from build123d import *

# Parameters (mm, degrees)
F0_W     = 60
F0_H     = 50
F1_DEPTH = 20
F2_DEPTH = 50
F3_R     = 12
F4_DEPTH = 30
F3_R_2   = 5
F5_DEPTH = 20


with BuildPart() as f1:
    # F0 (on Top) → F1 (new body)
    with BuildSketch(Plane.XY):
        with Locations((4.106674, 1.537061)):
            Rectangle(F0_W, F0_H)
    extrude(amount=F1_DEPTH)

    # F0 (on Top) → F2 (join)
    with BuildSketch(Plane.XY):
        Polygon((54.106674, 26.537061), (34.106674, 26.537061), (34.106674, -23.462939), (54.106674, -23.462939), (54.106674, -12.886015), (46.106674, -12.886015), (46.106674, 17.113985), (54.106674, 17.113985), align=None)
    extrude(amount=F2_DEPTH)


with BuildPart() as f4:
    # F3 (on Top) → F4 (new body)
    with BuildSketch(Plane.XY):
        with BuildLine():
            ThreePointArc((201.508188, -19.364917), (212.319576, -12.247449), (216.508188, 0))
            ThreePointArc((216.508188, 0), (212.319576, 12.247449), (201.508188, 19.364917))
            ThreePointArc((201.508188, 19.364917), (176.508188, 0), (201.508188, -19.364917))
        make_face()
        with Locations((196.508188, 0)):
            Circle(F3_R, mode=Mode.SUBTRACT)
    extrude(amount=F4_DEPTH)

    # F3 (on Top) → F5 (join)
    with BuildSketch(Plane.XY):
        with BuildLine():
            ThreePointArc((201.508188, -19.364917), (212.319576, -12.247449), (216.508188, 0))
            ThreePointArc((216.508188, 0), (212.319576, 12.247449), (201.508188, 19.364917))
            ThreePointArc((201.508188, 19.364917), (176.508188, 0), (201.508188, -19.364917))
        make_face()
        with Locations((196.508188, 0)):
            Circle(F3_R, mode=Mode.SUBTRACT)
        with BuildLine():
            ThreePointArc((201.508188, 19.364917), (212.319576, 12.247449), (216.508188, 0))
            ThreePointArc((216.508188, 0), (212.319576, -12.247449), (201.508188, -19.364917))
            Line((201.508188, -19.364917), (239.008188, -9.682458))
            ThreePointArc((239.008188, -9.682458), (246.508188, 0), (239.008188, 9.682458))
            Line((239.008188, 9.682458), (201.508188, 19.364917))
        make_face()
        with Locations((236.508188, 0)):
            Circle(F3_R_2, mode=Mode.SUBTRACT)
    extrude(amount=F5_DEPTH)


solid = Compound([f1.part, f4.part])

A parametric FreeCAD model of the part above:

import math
import FreeCAD as App
import Part
import Sketcher
from FreeCAD import Vector

doc = App.newDocument("Part")
params = doc.addObject("Spreadsheet::Sheet", "Params")
for row, (alias, value) in enumerate([
    ("sketch1_width", "60 mm"),
    ("sketch1_height", "50 mm"),
    ("pad1_length", "20 mm"),
    ("sketch2_width", "20 mm"),
    ("sketch2_width2", "8 mm"),
    ("sketch2_height", "50 mm"),
    ("sketch2_height2", "30 mm"),
    ("pad2_length", "50 mm"),
    ("sketch3_diameter", "24 mm"),
    ("sketch3_radius", "20.000001 mm"),
    ("pad3_length", "30 mm"),
    ("sketch4_diameter", "24 mm"),
    ("sketch4_diameter2", "10 mm"),
    ("sketch4_radius", "20 mm"),
    ("sketch4_radius2", "10 mm"),
    ("pad4_length", "20 mm"),
], start=1):
    params.set(f"A{row}", alias)
    params.set(f"B{row}", "=" + value)
    params.setAlias(f"B{row}", alias)

body = doc.addObject("PartDesign::Body", "Body")

# Sketch on XY plane
sketch1 = doc.addObject("Sketcher::SketchObject", "Sketch")
body.addObject(sketch1)
sketch1.AttachmentSupport = (doc.XY_Plane, [""])
sketch1.MapMode = "FlatFace"
sketch1.addGeometry([
    Part.LineSegment(Vector(-25.893326, 26.537061, 0), Vector(-25.893326, -23.462939, 0)),
    Part.LineSegment(Vector(-25.893326, -23.462939, 0), Vector(34.106674, -23.462939, 0)),
    Part.LineSegment(Vector(34.106674, -23.462939, 0), Vector(34.106674, 26.537061, 0)),
    Part.LineSegment(Vector(34.106674, 26.537061, 0), Vector(-25.893326, 26.537061, 0)),
], False)
sketch1.addConstraint([
    Sketcher.Constraint("Coincident", 0, 2, 1, 1),
    Sketcher.Constraint("Coincident", 1, 2, 2, 1),
    Sketcher.Constraint("Coincident", 2, 2, 3, 1),
    Sketcher.Constraint("Coincident", 3, 2, 0, 1),
    Sketcher.Constraint("Vertical", 0),
    Sketcher.Constraint("Horizontal", 1),
    Sketcher.Constraint("Vertical", 2),
    Sketcher.Constraint("Horizontal", 3),
    Sketcher.Constraint("DistanceX", 1, 1, 1, 2, 60.0),
    Sketcher.Constraint("DistanceY", 0, 2, 0, 1, 50.0),
    Sketcher.Constraint("DistanceY", 0, 2, -1, 1, 23.462939),
    Sketcher.Constraint("DistanceX", 0, 2, -1, 1, 25.893326),
])
sketch1.setExpression("Constraints[8]", "Params.sketch1_width")
sketch1.setExpression("Constraints[9]", "Params.sketch1_height")
pad1 = doc.addObject("PartDesign::Pad", "Pad")
body.addObject(pad1)
pad1.Profile = sketch1
pad1.setExpression("Length", "Params.pad1_length")

# Sketch on XY plane
sketch2 = doc.addObject("Sketcher::SketchObject", "Sketch001")
body.addObject(sketch2)
sketch2.AttachmentSupport = (doc.XY_Plane, [""])
sketch2.MapMode = "FlatFace"
sketch2.addGeometry([
    Part.LineSegment(Vector(54.106674, 26.537061, 0), Vector(34.106674, 26.537061, 0)),  # 0
    Part.LineSegment(Vector(34.106674, 26.537061, 0), Vector(34.106674, -23.462939, 0)),  # 1
    Part.LineSegment(Vector(34.106674, -23.462939, 0), Vector(54.106674, -23.462939, 0)),  # 2
    Part.LineSegment(Vector(54.106674, -23.462939, 0), Vector(54.106674, -12.886015, 0)),  # 3
    Part.LineSegment(Vector(54.106674, -12.886015, 0), Vector(46.106674, -12.886015, 0)),  # 4
    Part.LineSegment(Vector(46.106674, -12.886015, 0), Vector(46.106674, 17.113985, 0)),  # 5
    Part.LineSegment(Vector(46.106674, 17.113985, 0), Vector(54.106674, 17.113985, 0)),  # 6
    Part.LineSegment(Vector(54.106674, 17.113985, 0), Vector(54.106674, 26.537061, 0)),  # 7
], False)
sketch2.addConstraint([
    Sketcher.Constraint("Coincident", 0, 2, 1, 1),
    Sketcher.Constraint("Coincident", 1, 2, 2, 1),
    Sketcher.Constraint("Coincident", 2, 2, 3, 1),
    Sketcher.Constraint("Coincident", 3, 2, 4, 1),
    Sketcher.Constraint("Coincident", 4, 2, 5, 1),
    Sketcher.Constraint("Coincident", 5, 2, 6, 1),
    Sketcher.Constraint("Coincident", 6, 2, 7, 1),
    Sketcher.Constraint("Coincident", 7, 2, 0, 1),
    Sketcher.Constraint("Horizontal", 0),
    Sketcher.Constraint("Vertical", 1),
    Sketcher.Constraint("Horizontal", 2),
    Sketcher.Constraint("Vertical", 3),
    Sketcher.Constraint("Horizontal", 4),
    Sketcher.Constraint("Vertical", 5),
    Sketcher.Constraint("Horizontal", 6),
    Sketcher.Constraint("Vertical", 7),
    Sketcher.Constraint("Vertical", 3, 2, 6, 2),
    Sketcher.Constraint("DistanceX", 0, 2, 0, 1, 20.0),
    Sketcher.Constraint("DistanceX", 4, 2, 4, 1, 8.0),
    Sketcher.Constraint("DistanceY", 1, 2, 1, 1, 50.0),
    Sketcher.Constraint("DistanceY", 5, 1, 5, 2, 30.0),
    Sketcher.Constraint("DistanceY", 3, 1, 3, 2, 10.576924),
    Sketcher.Constraint("DistanceY", -1, 1, 0, 2, 26.537061),
    Sketcher.Constraint("DistanceX", -1, 1, 0, 2, 34.106674),
])
sketch2.setExpression("Constraints[17]", "Params.sketch2_width")
sketch2.setExpression("Constraints[18]", "Params.sketch2_width2")
sketch2.setExpression("Constraints[19]", "Params.sketch2_height")
sketch2.setExpression("Constraints[20]", "Params.sketch2_height2")
pad2 = doc.addObject("PartDesign::Pad", "Pad001")
body.addObject(pad2)
pad2.Profile = sketch2
pad2.setExpression("Length", "Params.pad2_length")
body2 = doc.addObject("PartDesign::Body", "Body001")

# Sketch on XY plane
sketch3 = doc.addObject("Sketcher::SketchObject", "Sketch002")
body2.addObject(sketch3)
sketch3.AttachmentSupport = (doc.getObject("XY_Plane001"), [""])
sketch3.MapMode = "FlatFace"
sketch3.addGeometry([
    Part.ArcOfCircle(Part.Circle(Vector(196.508187, 0, 0), Vector(0, 0, 1), 20.000001), math.radians(-75.522486), math.radians(-0.000001)),
    Part.ArcOfCircle(Part.Circle(Vector(196.508187, 0, 0), Vector(0, 0, 1), 20.000001), math.radians(0.000001), math.radians(75.522486)),
    Part.ArcOfCircle(Part.Circle(Vector(196.508188, 0, 0), Vector(0, 0, 1), 20), math.radians(75.522489), math.radians(284.477511)),
    Part.Circle(Vector(196.508188, 0, 0), Vector(0, 0, 1), 12),
], False)
sketch3.addConstraint([
    Sketcher.Constraint("Tangent", 0, 2, 1, 1),
    Sketcher.Constraint("Tangent", 1, 2, 2, 1),
    Sketcher.Constraint("Tangent", 2, 2, 0, 1),
    Sketcher.Constraint("Coincident", 3, 3, 0, 3),
    Sketcher.Constraint("Symmetric", 1, 2, 2, 2, -1),
    Sketcher.Constraint("PointOnObject", 0, 2, -1),
    Sketcher.Constraint("Diameter", 3, 24.0),
    Sketcher.Constraint("Radius", 0, 20.000001),
    Sketcher.Constraint("DistanceX", 0, 3, 1, 2, 5.000001),
    Sketcher.Constraint("DistanceX", -1, 1, 2, 3, 196.508188),
])
sketch3.setExpression("Constraints[6]", "Params.sketch3_diameter")
sketch3.setExpression("Constraints[7]", "Params.sketch3_radius")
pad3 = doc.addObject("PartDesign::Pad", "Pad002")
body2.addObject(pad3)
pad3.Profile = sketch3
pad3.setExpression("Length", "Params.pad3_length")

# Sketch on XY plane
sketch4 = doc.addObject("Sketcher::SketchObject", "Sketch003")
body2.addObject(sketch4)
sketch4.AttachmentSupport = (doc.getObject("XY_Plane001"), [""])
sketch4.MapMode = "FlatFace"
sketch4.addGeometry([
    Part.ArcOfCircle(Part.Circle(Vector(196.508188, 0, 0), Vector(0, 0, 1), 20), math.radians(75.522489), math.radians(284.477511)),  # 0
    Part.LineSegment(Vector(201.508188, -19.364917, 0), Vector(239.008188, -9.682458, 0)),  # 1
    Part.ArcOfCircle(Part.Circle(Vector(236.508188, 0, 0), Vector(0, 0, 1), 10), math.radians(-75.52249), math.radians(75.52249)),  # 2
    Part.LineSegment(Vector(239.008188, 9.682458, 0), Vector(201.508188, 19.364917, 0)),  # 3
    Part.Circle(Vector(196.508188, 0, 0), Vector(0, 0, 1), 12),  # 4
    Part.Circle(Vector(236.508188, 0, 0), Vector(0, 0, 1), 5),  # 5
], False)
sketch4.addConstraint([
    Sketcher.Constraint("Tangent", 0, 2, 1, 1),
    Sketcher.Constraint("Tangent", 1, 2, 2, 1),
    Sketcher.Constraint("Tangent", 2, 2, 3, 1),
    Sketcher.Constraint("Tangent", 3, 2, 0, 1),
    Sketcher.Constraint("Coincident", 4, 3, 0, 3),
    Sketcher.Constraint("Coincident", 5, 3, 2, 3),
    Sketcher.Constraint("Symmetric", 1, 2, 2, 2, -1),
    Sketcher.Constraint("Diameter", 4, 24.0),
    Sketcher.Constraint("Diameter", 5, 10.0),
    Sketcher.Constraint("Radius", 0, 20.0),
    Sketcher.Constraint("Radius", 2, 10.0),
    Sketcher.Constraint("DistanceX", 0, 3, 2, 3, 40.0),
    Sketcher.Constraint("DistanceX", -1, 1, 0, 3, 196.508188),
])
sketch4.setExpression("Constraints[7]", "Params.sketch4_diameter")
sketch4.setExpression("Constraints[8]", "Params.sketch4_diameter2")
sketch4.setExpression("Constraints[9]", "Params.sketch4_radius")
sketch4.setExpression("Constraints[10]", "Params.sketch4_radius2")
pad4 = doc.addObject("PartDesign::Pad", "Pad003")
body2.addObject(pad4)
pad4.Profile = sketch4
pad4.setExpression("Length", "Params.pad4_length")

doc.recompute()
